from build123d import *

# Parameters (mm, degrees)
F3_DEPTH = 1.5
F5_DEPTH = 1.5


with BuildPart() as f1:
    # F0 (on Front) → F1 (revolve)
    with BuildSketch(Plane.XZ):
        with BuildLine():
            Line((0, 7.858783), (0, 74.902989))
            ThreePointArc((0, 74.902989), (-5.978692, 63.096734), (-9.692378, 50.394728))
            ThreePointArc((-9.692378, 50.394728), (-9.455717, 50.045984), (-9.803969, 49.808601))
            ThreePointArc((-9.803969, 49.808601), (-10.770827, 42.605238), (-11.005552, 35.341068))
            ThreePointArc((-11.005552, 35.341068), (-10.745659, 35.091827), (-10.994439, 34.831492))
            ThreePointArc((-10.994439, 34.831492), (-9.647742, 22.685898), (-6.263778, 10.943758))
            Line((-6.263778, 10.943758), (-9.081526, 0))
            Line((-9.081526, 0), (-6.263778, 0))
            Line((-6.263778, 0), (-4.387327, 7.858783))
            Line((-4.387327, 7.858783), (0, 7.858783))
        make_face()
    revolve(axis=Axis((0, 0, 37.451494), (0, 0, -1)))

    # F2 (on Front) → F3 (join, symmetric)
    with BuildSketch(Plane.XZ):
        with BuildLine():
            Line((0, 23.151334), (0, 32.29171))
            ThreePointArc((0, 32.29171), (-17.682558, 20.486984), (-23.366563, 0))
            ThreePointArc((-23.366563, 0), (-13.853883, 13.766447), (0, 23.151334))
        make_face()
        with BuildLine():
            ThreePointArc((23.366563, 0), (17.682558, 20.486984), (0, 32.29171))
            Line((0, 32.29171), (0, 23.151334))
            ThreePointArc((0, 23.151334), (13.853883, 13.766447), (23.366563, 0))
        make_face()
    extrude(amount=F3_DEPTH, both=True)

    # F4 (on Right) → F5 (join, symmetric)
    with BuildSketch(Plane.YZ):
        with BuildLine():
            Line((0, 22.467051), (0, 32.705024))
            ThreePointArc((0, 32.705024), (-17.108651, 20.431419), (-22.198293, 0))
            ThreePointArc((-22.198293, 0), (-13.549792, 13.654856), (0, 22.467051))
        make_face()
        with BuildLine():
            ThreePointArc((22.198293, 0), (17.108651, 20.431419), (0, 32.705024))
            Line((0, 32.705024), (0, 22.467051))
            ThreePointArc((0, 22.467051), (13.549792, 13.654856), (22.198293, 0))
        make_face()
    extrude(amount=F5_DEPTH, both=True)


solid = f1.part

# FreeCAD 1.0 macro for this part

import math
import FreeCAD as App
import Part
import Sketcher
from FreeCAD import Vector
Q = App.Units.Quantity

doc = App.newDocument("Part")
body = doc.addObject("PartDesign::Body", "Body")

sketch1 = body.newObject("Sketcher::SketchObject", "Sketch")
sketch1.AttachmentSupport = (doc.getObject("XZ_Plane"), [""])
sketch1.MapMode = "FlatFace"
sketch1.addGeometry(Part.LineSegment(Vector(0, 7.86, 0), Vector(0, 74.9, 0)), False)
sketch1.addGeometry(Part.ArcOfCircle(Part.Circle(Vector(60.88, 36.65, 0), Vector(0, 0, 1), 71.9), math.radians(148), math.radians(169)), False)
sketch1.addGeometry(Part.ArcOfCircle(Part.Circle(Vector(-9.75, 50.1, 0), Vector(0, 0, 1), 0.3), math.radians(-101), math.radians(79)), False)
sketch1.addGeometry(Part.ArcOfCircle(Part.Circle(Vector(60.88, 36.65, 0), Vector(0, 0, 1), 71.9), math.radians(169.46), math.radians(181.05)), False)
sketch1.addGeometry(Part.ArcOfCircle(Part.Circle(Vector(-11, 35.09, 0), Vector(0, 0, 1), 0.25), math.radians(-89), math.radians(91)), False)
sketch1.addGeometry(Part.ArcOfCircle(Part.Circle(Vector(60.88, 36.65, 0), Vector(0, 0, 1), 71.9), math.radians(-178.55), math.radians(-159.05)), False)
sketch1.addGeometry(Part.LineSegment(Vector(-6.26, 10.94, 0), Vector(-9.08, 0, 0)), False)
sketch1.addGeometry(Part.LineSegment(Vector(-9.08, 0, 0), Vector(-6.26, 0, 0)), False)
sketch1.addGeometry(Part.LineSegment(Vector(-6.26, 0, 0), Vector(-4.39, 7.86, 0)), False)
sketch1.addGeometry(Part.LineSegment(Vector(-4.39, 7.86, 0), Vector(0, 7.86, 0)), False)
sketch1.addConstraint(Sketcher.Constraint("Coincident", 0, 2, 1, 1))
sketch1.addConstraint(Sketcher.Constraint("Coincident", 1, 2, 2, 2))
sketch1.addConstraint(Sketcher.Constraint("Coincident", 2, 1, 3, 1))
sketch1.addConstraint(Sketcher.Constraint("Coincident", 3, 2, 4, 2))
sketch1.addConstraint(Sketcher.Constraint("Coincident", 4, 1, 5, 1))
sketch1.addConstraint(Sketcher.Constraint("Coincident", 5, 2, 6, 1))
sketch1.addConstraint(Sketcher.Constraint("Coincident", 6, 2, 7, 1))
sketch1.addConstraint(Sketcher.Constraint("Coincident", 7, 2, 8, 1))
sketch1.addConstraint(Sketcher.Constraint("Coincident", 8, 2, 9, 1))
sketch1.addConstraint(Sketcher.Constraint("Coincident", 9, 2, 0, 1))
sketch1.addConstraint(Sketcher.Constraint("Vertical", 0))
sketch1.addConstraint(Sketcher.Constraint("Horizontal", 7))
sketch1.addConstraint(Sketcher.Constraint("Horizontal", 9))
sketch1.addConstraint(Sketcher.Constraint("PointOnObject", 0, 2, -2))
sketch1.addConstraint(Sketcher.Constraint("PointOnObject", 6, 2, -1))
sketch1.addConstraint(Sketcher.Constraint("Vertical", 5, 2, 7, 2))
sketch1.addConstraint(Sketcher.Constraint("Radius", 1, Q("71.90237 mm")))
sketch1.addConstraint(Sketcher.Constraint("Radius", 2, Q("0.298328 mm")))
sketch1.addConstraint(Sketcher.Constraint("Radius", 4, Q("0.254849 mm")))
sketch1.addConstraint(Sketcher.Constraint("Radius", 5, Q("71.902321 mm")))
sketch1.addConstraint(Sketcher.Constraint("Radius", 3, Q("71.902244 mm")))
sketch1.addConstraint(Sketcher.Constraint("Distance", 8, Q("8.079699 mm")))
sketch1.addConstraint(Sketcher.Constraint("DistanceY", -1, 1, 2, 1, Q("49.808601 mm")))
sketch1.addConstraint(Sketcher.Constraint("DistanceX", 6, 2, 8, 2, Q("4.694199 mm")))
sketch1.addConstraint(Sketcher.Constraint("DistanceX", 7, 1, 7, 2, Q("2.817748 mm")))
sketch1.addConstraint(Sketcher.Constraint("DistanceX", 9, 1, 9, 2, Q("4.387327 mm")))
sketch1.addConstraint(Sketcher.Constraint("DistanceY", 0, 1, 0, 2, Q("67.044206 mm")))
sketch1.addConstraint(Sketcher.Constraint("DistanceX", 2, 3, -1, 1, Q("9.748781 mm")))
sketch1.addConstraint(Sketcher.Constraint("DistanceY", -1, 1, 2, 3, Q("50.10178 mm")))
sketch1.addConstraint(Sketcher.Constraint("DistanceY", -1, 1, 4, 3, Q("35.08627 mm")))
sketch1.addConstraint(Sketcher.Constraint("DistanceX", -1, 1, 5, 3, Q("60.884782 mm")))
sketch1.addConstraint(Sketcher.Constraint("DistanceX", 3, 2, -1, 1, Q("11.005552 mm")))
sketch1.addConstraint(Sketcher.Constraint("DistanceX", 4, 1, -1, 1, Q("10.994439 mm")))
sketch1.addConstraint(Sketcher.Constraint("DistanceY", -1, 1, 4, 1, Q("34.831492 mm")))
sketch1.addConstraint(Sketcher.Constraint("DistanceX", 2, 3, 1, 3, Q("70.633608 mm")))
revolution = body.newObject("PartDesign::Revolution", "Revolution")
revolution.Profile = sketch1
revolution.ReferenceAxis = (sketch1, ["V_Axis"])
revolution.Angle = 360

sketch2 = body.newObject("Sketcher::SketchObject", "Sketch001")
sketch2.AttachmentSupport = (doc.getObject("XZ_Plane"), [""])
sketch2.MapMode = "FlatFace"
sketch2.addGeometry(Part.ArcOfCircle(Part.Circle(Vector(7, 3, 0), Vector(0, 0, 1), 31), math.radians(103), math.radians(185)), False)
sketch2.addGeometry(Part.ArcOfCircle(Part.Circle(Vector(18, -18, 0), Vector(0, 0, 1), 45), math.radians(113), math.radians(156)), False)
sketch2.addGeometry(Part.ArcOfCircle(Part.Circle(Vector(-18, -18, 0), Vector(0, 0, 1), 45), math.radians(24), math.radians(67)), False)
sketch2.addGeometry(Part.ArcOfCircle(Part.Circle(Vector(-7, 3, 0), Vector(0, 0, 1), 31), math.radians(-5), math.radians(77)), False)
sketch2.addConstraint(Sketcher.Constraint("Coincident", 0, 2, 1, 2))
sketch2.addConstraint(Sketcher.Constraint("Coincident", 1, 1, 2, 2))
sketch2.addConstraint(Sketcher.Constraint("Coincident", 2, 1, 3, 1))
sketch2.addConstraint(Sketcher.Constraint("Coincident", 3, 2, 0, 1))
sketch2.addConstraint(Sketcher.Constraint("Equal", 1, 2))
sketch2.addConstraint(Sketcher.Constraint("Equal", 0, 3))
sketch2.addConstraint(Sketcher.Constraint("Symmetric", 0, 2, 2, 1, -1, 1))
sketch2.addConstraint(Sketcher.Constraint("Symmetric", 1, 3, 2, 3, -2))
sketch2.addConstraint(Sketcher.Constraint("PointOnObject", 3, 2, -2))
sketch2.addConstraint(Sketcher.Constraint("Radius", 0, Q("30.520818 mm")))
sketch2.addConstraint(Sketcher.Constraint("Radius", 1, Q("45.396656 mm")))
sketch2.addConstraint(Sketcher.Constraint("DistanceX", 0, 2, 1, 3, Q("41.4641 mm")))
sketch2.addConstraint(Sketcher.Constraint("DistanceY", 3, 3, 3, 2, Q("29.6969 mm")))
sketch2.addConstraint(Sketcher.Constraint("DistanceY", -1, 1, 0, 3, Q("2.59481 mm")))
pad1 = body.newObject("PartDesign::Pad", "Pad")
pad1.Profile = sketch2
pad1.Length = 3
pad1.Midplane = True

sketch3 = body.newObject("Sketcher::SketchObject", "Sketch002")
sketch3.AttachmentSupport = (doc.getObject("YZ_Plane"), [""])
sketch3.MapMode = "FlatFace"
sketch3.addGeometry(Part.ArcOfCircle(Part.Circle(Vector(8, 3, 0), Vector(0, 0, 1), 31), math.radians(105), math.radians(186)), False)
sketch3.addGeometry(Part.ArcOfCircle(Part.Circle(Vector(13, -13, 0), Vector(0, 0, 1), 38), math.radians(111), math.radians(160)), False)
sketch3.addGeometry(Part.ArcOfCircle(Part.Circle(Vector(-13, -13, 0), Vector(0, 0, 1), 38), math.radians(20), math.radians(69)), False)
sketch3.addGeometry(Part.ArcOfCircle(Part.Circle(Vector(-8, 3, 0), Vector(0, 0, 1), 31), math.radians(-6), math.radians(75)), False)
sketch3.addConstraint(Sketcher.Constraint("Coincident", 0, 2, 1, 2))
sketch3.addConstraint(Sketcher.Constraint("Coincident", 1, 1, 2, 2))
sketch3.addConstraint(Sketcher.Constraint("Coincident", 2, 1, 3, 1))
sketch3.addConstraint(Sketcher.Constraint("Coincident", 3, 2, 0, 1))
sketch3.addConstraint(Sketcher.Constraint("Equal", 1, 2))
sketch3.addConstraint(Sketcher.Constraint("Equal", 0, 3))
sketch3.addConstraint(Sketcher.Constraint("Symmetric", 0, 2, 2, 1, -1, 1))
sketch3.addConstraint(Sketcher.Constraint("Symmetric", 1, 3, 2, 3, -2))
sketch3.addConstraint(Sketcher.Constraint("PointOnObject", 3, 2, -2))
sketch3.addConstraint(Sketcher.Constraint("Radius", 0, Q("30.520818 mm")))
sketch3.addConstraint(Sketcher.Constraint("Radius", 1, Q("37.916745 mm")))
sketch3.addConstraint(Sketcher.Constraint("DistanceY", 1, 3, 0, 3, Q("16.285499 mm")))
sketch3.addConstraint(Sketcher.Constraint("DistanceY", -1, 1, 1, 1, Q("22.467051 mm")))
sketch3.addConstraint(Sketcher.Constraint("DistanceX", 2, 3, 0, 3, Q("21.566812 mm")))
pad2 = body.newObject("PartDesign::Pad", "Pad001")
pad2.Profile = sketch3
pad2.Length = 3
pad2.Midplane = True

doc.recompute()
